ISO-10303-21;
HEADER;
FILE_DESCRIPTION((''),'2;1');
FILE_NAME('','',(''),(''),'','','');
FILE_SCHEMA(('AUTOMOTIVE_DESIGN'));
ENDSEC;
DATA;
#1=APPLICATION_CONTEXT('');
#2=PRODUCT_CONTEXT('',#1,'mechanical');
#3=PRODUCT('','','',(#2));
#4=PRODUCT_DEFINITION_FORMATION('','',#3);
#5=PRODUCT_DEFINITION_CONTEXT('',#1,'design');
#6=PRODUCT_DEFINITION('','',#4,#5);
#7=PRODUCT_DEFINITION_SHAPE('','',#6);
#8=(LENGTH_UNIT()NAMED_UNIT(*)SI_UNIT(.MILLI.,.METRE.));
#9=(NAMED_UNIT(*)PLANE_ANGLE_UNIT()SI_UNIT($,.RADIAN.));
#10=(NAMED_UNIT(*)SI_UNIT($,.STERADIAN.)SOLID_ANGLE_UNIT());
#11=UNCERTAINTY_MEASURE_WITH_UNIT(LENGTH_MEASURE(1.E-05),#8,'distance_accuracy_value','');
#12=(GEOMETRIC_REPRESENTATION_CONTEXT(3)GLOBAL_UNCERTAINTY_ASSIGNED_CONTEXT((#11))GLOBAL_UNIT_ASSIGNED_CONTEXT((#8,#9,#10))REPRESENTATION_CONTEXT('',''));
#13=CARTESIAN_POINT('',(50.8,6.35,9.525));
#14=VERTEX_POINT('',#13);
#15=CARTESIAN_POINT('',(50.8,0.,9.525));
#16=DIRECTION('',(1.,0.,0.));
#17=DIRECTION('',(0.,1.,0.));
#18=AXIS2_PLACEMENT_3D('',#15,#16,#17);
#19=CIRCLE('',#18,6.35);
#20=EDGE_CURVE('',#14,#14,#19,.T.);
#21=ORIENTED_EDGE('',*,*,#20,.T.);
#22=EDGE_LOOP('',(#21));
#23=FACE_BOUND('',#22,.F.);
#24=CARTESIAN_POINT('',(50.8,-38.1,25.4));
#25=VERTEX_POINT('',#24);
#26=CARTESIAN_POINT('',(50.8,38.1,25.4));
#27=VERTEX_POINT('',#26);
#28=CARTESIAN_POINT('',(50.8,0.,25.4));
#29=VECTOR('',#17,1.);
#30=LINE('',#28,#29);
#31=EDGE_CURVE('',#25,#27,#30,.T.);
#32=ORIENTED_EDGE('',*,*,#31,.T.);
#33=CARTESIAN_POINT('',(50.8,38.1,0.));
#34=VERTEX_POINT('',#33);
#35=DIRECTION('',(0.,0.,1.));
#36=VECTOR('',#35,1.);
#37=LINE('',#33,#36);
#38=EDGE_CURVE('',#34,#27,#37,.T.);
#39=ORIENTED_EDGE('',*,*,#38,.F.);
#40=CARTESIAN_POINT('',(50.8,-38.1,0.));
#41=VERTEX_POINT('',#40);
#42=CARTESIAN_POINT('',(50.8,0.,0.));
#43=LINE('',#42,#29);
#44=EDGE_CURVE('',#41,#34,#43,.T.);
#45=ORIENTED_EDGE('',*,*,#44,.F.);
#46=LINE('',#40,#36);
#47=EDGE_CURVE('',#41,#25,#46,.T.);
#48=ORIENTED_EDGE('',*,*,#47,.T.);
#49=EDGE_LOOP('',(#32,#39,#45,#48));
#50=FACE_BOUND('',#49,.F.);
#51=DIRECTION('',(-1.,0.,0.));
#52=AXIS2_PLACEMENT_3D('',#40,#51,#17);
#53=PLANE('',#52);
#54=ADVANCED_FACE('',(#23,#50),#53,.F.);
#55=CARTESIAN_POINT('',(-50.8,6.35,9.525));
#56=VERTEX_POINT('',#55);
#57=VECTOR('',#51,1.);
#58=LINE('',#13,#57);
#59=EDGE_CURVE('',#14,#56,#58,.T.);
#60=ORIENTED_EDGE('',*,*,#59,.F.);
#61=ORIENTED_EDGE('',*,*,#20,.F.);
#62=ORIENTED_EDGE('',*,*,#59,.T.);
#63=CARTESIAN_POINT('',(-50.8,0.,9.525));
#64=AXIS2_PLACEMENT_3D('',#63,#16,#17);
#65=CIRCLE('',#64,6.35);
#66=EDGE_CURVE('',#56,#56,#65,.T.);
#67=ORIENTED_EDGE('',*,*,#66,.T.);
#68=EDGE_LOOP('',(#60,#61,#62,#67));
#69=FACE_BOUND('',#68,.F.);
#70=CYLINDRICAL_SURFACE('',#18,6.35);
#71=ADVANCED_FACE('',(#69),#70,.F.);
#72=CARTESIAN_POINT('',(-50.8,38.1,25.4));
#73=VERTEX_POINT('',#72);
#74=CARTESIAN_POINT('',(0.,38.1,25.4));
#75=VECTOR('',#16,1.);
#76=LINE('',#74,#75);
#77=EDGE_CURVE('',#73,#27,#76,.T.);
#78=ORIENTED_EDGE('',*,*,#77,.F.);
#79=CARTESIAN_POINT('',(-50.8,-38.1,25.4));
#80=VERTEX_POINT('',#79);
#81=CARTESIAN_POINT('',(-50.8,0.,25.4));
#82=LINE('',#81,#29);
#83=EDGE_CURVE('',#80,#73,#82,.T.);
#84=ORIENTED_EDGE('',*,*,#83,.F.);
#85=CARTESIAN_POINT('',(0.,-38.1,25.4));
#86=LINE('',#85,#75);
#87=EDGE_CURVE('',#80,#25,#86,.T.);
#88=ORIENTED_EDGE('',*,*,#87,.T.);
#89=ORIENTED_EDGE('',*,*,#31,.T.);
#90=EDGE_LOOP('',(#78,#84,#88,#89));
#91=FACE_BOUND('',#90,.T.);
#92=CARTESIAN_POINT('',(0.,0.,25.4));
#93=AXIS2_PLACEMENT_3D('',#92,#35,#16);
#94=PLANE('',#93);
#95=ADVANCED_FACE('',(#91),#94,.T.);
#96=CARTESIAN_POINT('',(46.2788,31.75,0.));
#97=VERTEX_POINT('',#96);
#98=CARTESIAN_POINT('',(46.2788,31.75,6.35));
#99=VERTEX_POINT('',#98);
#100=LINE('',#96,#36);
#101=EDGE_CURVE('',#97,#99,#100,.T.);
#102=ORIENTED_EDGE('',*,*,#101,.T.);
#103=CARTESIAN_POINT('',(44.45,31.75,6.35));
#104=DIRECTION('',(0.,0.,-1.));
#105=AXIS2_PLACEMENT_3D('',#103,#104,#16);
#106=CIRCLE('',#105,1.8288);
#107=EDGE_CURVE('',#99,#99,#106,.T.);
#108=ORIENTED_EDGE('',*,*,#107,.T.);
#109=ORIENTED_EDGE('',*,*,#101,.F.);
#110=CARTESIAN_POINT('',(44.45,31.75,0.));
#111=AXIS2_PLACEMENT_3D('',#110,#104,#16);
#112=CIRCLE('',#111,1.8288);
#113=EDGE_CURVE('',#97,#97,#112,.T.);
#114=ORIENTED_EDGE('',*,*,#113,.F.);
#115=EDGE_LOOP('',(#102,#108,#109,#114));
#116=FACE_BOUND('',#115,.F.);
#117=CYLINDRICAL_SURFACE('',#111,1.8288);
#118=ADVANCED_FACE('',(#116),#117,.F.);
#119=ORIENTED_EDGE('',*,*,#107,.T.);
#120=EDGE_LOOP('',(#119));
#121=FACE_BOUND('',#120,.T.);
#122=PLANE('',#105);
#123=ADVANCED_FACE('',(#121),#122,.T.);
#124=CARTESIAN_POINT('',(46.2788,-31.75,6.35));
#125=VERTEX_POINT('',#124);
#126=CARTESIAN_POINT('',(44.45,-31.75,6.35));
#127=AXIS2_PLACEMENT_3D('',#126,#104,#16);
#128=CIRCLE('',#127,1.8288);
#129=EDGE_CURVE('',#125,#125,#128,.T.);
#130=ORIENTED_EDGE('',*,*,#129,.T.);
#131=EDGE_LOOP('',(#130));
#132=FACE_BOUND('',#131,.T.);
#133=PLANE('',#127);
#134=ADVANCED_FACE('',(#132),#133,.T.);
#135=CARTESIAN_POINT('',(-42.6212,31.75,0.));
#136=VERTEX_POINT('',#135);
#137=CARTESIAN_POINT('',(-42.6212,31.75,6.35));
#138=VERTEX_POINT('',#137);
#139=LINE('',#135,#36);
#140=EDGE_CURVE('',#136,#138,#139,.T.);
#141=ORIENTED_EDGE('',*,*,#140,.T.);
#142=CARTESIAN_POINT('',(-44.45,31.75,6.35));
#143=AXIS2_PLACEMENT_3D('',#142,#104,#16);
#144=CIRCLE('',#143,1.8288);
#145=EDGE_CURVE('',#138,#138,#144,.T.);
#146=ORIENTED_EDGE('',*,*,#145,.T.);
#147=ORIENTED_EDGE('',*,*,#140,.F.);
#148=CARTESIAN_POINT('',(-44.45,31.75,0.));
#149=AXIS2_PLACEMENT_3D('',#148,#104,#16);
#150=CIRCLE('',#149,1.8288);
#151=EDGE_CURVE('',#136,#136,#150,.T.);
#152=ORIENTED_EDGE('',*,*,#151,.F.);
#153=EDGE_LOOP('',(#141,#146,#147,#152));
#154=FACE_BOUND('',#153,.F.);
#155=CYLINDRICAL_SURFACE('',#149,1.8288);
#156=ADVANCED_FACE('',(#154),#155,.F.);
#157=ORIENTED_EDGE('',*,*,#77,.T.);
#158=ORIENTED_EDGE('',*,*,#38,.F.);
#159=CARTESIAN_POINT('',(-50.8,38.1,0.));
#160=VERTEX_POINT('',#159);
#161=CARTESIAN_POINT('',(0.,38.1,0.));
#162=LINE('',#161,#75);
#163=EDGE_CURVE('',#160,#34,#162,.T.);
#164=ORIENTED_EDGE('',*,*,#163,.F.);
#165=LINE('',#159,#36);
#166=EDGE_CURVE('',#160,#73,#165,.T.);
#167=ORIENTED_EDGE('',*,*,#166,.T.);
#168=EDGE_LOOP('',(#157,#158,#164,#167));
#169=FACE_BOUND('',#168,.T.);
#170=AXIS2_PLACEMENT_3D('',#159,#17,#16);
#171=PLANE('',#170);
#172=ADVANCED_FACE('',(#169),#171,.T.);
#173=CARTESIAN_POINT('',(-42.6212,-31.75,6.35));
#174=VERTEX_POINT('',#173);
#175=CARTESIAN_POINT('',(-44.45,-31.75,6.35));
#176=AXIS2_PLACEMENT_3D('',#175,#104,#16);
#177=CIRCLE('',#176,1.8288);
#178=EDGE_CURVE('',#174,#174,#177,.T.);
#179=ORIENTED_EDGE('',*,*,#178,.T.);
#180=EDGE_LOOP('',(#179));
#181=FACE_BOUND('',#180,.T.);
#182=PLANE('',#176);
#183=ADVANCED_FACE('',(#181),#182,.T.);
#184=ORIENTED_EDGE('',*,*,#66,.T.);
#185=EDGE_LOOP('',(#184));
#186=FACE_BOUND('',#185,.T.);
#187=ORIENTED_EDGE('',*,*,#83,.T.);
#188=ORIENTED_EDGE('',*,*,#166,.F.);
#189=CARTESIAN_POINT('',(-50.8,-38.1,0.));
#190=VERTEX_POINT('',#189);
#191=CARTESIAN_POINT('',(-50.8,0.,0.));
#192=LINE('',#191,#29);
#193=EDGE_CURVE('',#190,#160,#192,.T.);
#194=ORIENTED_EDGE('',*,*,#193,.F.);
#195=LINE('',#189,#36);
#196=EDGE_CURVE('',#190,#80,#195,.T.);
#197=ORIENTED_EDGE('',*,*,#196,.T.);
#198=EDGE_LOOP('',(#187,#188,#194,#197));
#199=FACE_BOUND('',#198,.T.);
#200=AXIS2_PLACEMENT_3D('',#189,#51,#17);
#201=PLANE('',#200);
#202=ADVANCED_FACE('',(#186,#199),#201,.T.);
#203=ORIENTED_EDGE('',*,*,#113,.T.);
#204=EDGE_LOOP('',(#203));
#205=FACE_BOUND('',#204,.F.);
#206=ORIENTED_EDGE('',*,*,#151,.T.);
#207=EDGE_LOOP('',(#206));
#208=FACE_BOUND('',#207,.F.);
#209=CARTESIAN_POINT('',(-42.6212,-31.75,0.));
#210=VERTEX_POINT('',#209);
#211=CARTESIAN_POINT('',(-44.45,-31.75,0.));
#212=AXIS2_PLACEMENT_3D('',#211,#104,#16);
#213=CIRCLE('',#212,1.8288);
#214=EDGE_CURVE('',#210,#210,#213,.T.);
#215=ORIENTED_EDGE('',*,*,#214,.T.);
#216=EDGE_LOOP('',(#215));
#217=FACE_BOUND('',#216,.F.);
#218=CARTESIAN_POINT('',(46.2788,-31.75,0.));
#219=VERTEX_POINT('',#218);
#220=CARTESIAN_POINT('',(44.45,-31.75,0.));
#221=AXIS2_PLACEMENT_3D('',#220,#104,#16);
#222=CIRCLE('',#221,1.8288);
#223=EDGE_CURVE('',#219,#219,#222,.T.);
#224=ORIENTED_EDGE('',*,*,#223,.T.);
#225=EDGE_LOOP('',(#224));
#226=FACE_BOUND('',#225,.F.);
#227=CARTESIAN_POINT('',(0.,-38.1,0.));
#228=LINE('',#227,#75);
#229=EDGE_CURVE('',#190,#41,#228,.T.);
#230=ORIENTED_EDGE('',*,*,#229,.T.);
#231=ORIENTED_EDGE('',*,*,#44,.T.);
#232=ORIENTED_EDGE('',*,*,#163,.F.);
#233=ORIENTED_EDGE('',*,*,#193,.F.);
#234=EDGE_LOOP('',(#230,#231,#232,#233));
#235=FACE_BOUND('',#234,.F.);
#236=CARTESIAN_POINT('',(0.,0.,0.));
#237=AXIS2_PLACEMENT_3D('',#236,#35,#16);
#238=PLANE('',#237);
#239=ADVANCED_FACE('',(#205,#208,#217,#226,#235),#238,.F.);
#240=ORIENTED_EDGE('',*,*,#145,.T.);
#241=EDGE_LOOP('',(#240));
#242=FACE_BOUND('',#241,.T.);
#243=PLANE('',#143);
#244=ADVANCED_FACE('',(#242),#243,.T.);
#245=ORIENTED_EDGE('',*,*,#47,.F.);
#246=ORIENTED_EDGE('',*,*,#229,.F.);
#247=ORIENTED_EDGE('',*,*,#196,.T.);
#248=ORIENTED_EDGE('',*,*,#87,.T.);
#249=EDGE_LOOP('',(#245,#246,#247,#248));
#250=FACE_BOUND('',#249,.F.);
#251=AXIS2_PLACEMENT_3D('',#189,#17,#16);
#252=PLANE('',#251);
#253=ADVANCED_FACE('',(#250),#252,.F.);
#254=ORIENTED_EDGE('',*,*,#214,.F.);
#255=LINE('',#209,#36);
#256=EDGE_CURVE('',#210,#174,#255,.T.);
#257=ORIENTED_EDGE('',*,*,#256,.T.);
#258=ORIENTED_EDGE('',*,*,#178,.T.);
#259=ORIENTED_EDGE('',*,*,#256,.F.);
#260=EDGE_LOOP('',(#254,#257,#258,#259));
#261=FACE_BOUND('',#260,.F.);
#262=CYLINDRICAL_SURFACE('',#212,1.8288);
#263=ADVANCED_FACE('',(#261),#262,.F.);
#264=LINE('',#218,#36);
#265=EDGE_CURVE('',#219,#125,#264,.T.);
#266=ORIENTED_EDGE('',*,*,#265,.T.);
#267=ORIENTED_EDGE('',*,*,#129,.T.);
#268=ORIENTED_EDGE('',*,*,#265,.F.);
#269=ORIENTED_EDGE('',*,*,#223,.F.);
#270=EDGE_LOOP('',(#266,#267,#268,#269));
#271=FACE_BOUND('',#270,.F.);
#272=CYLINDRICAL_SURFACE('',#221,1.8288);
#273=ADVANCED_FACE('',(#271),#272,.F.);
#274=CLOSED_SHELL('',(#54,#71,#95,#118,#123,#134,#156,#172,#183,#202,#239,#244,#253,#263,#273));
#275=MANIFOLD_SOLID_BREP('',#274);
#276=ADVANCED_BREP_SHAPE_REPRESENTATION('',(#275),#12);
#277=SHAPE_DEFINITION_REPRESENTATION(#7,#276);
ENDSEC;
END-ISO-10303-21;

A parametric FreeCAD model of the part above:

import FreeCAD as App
import Part
import Sketcher

V = App.Vector
Q = App.Units.Quantity

doc = App.newDocument("Part")
body = doc.addObject("PartDesign::Body", "Body")

sketch1 = doc.addObject("Sketcher::SketchObject", "Sketch")
body.addObject(sketch1)
sketch1.AttachmentSupport = (doc.XY_Plane, [""])
sketch1.MapMode = "FlatFace"
sketch1.addGeometry([
    Part.LineSegment(V(-50.8, 38.1, 0), V(-50.8, -38.1, 0)),
    Part.LineSegment(V(-50.8, -38.1, 0), V(50.8, -38.1, 0)),
    Part.LineSegment(V(50.8, -38.1, 0), V(50.8, 38.1, 0)),
    Part.LineSegment(V(50.8, 38.1, 0), V(-50.8, 38.1, 0)),
], False)
sketch1.addConstraint([
    Sketcher.Constraint("Coincident", 0, 2, 1, 1),
    Sketcher.Constraint("Coincident", 1, 2, 2, 1),
    Sketcher.Constraint("Coincident", 2, 2, 3, 1),
    Sketcher.Constraint("Coincident", 3, 2, 0, 1),
    Sketcher.Constraint("Vertical", 0),
    Sketcher.Constraint("Horizontal", 1),
    Sketcher.Constraint("Vertical", 2),
    Sketcher.Constraint("Horizontal", 3),
    Sketcher.Constraint("Symmetric", 0, 2, 2, 2, -1, 1),
    Sketcher.Constraint("DistanceX", 1, 1, 1, 2, Q("4 in")),
    Sketcher.Constraint("DistanceY", 0, 2, 0, 1, Q("3 in")),
])
pad1 = doc.addObject("PartDesign::Pad", "Pad")
body.addObject(pad1)
pad1.Profile = sketch1
pad1.Length = Q("1 in")

sketch2 = doc.addObject("Sketcher::SketchObject", "Sketch001")
body.addObject(sketch2)
sketch2.AttachmentSupport = (doc.YZ_Plane, [""])
sketch2.MapMode = "FlatFace"
sketch2.AttachmentOffset = App.Placement(V(0, 0, 2 * 25.4), App.Rotation())
sketch2.addGeometry(Part.Circle(V(0, 9.525, 0), V(0, 0, 1), 6.35), False)
sketch2.addConstraint([
    Sketcher.Constraint("PointOnObject", 0, 3, -2),
    Sketcher.Constraint("Diameter", 0, Q("0.5 in")),
    Sketcher.Constraint("DistanceY", -1, 1, 0, 3, Q("0.375 in")),
])
pocket1 = doc.addObject("PartDesign::Pocket", "Pocket")
body.addObject(pocket1)
pocket1.Profile = sketch2
pocket1.Length = Q("4 in")

sketch3 = doc.addObject("Sketcher::SketchObject", "Sketch002")
body.addObject(sketch3)
sketch3.AttachmentSupport = (doc.XY_Plane, [""])
sketch3.MapMode = "FlatFace"
sketch3.addGeometry([
    Part.Circle(V(-44.45, -31.75, 0), V(0, 0, 1), 1.8288),
    Part.Circle(V(-44.45, 31.75, 0), V(0, 0, 1), 1.8288),
    Part.Circle(V(44.45, 31.75, 0), V(0, 0, 1), 1.8288),
    Part.Circle(V(44.45, -31.75, 0), V(0, 0, 1), 1.8288),
], False)
sketch3.addConstraint([
    Sketcher.Constraint("Equal", 0, 1),
    Sketcher.Constraint("Equal", 1, 2),
    Sketcher.Constraint("Equal", 2, 3),
    Sketcher.Constraint("Symmetric", 0, 3, 2, 3, -1, 1),
    Sketcher.Constraint("Symmetric", 1, 3, 3, 3, -1, 1),
    Sketcher.Constraint("Symmetric", 1, 3, 2, 3, -2),
    Sketcher.Constraint("Diameter", 0, Q("0.144 in")),
    Sketcher.Constraint("DistanceY", 0, 3, 1, 3, Q("2.5 in")),
    Sketcher.Constraint("DistanceX", 1, 3, 2, 3, Q("3.5 in")),
])
pocket2 = doc.addObject("PartDesign::Pocket", "Pocket001")
body.addObject(pocket2)
pocket2.Profile = sketch3
pocket2.Length = Q("0.25 in")
pocket2.Reversed = True

doc.recompute()
